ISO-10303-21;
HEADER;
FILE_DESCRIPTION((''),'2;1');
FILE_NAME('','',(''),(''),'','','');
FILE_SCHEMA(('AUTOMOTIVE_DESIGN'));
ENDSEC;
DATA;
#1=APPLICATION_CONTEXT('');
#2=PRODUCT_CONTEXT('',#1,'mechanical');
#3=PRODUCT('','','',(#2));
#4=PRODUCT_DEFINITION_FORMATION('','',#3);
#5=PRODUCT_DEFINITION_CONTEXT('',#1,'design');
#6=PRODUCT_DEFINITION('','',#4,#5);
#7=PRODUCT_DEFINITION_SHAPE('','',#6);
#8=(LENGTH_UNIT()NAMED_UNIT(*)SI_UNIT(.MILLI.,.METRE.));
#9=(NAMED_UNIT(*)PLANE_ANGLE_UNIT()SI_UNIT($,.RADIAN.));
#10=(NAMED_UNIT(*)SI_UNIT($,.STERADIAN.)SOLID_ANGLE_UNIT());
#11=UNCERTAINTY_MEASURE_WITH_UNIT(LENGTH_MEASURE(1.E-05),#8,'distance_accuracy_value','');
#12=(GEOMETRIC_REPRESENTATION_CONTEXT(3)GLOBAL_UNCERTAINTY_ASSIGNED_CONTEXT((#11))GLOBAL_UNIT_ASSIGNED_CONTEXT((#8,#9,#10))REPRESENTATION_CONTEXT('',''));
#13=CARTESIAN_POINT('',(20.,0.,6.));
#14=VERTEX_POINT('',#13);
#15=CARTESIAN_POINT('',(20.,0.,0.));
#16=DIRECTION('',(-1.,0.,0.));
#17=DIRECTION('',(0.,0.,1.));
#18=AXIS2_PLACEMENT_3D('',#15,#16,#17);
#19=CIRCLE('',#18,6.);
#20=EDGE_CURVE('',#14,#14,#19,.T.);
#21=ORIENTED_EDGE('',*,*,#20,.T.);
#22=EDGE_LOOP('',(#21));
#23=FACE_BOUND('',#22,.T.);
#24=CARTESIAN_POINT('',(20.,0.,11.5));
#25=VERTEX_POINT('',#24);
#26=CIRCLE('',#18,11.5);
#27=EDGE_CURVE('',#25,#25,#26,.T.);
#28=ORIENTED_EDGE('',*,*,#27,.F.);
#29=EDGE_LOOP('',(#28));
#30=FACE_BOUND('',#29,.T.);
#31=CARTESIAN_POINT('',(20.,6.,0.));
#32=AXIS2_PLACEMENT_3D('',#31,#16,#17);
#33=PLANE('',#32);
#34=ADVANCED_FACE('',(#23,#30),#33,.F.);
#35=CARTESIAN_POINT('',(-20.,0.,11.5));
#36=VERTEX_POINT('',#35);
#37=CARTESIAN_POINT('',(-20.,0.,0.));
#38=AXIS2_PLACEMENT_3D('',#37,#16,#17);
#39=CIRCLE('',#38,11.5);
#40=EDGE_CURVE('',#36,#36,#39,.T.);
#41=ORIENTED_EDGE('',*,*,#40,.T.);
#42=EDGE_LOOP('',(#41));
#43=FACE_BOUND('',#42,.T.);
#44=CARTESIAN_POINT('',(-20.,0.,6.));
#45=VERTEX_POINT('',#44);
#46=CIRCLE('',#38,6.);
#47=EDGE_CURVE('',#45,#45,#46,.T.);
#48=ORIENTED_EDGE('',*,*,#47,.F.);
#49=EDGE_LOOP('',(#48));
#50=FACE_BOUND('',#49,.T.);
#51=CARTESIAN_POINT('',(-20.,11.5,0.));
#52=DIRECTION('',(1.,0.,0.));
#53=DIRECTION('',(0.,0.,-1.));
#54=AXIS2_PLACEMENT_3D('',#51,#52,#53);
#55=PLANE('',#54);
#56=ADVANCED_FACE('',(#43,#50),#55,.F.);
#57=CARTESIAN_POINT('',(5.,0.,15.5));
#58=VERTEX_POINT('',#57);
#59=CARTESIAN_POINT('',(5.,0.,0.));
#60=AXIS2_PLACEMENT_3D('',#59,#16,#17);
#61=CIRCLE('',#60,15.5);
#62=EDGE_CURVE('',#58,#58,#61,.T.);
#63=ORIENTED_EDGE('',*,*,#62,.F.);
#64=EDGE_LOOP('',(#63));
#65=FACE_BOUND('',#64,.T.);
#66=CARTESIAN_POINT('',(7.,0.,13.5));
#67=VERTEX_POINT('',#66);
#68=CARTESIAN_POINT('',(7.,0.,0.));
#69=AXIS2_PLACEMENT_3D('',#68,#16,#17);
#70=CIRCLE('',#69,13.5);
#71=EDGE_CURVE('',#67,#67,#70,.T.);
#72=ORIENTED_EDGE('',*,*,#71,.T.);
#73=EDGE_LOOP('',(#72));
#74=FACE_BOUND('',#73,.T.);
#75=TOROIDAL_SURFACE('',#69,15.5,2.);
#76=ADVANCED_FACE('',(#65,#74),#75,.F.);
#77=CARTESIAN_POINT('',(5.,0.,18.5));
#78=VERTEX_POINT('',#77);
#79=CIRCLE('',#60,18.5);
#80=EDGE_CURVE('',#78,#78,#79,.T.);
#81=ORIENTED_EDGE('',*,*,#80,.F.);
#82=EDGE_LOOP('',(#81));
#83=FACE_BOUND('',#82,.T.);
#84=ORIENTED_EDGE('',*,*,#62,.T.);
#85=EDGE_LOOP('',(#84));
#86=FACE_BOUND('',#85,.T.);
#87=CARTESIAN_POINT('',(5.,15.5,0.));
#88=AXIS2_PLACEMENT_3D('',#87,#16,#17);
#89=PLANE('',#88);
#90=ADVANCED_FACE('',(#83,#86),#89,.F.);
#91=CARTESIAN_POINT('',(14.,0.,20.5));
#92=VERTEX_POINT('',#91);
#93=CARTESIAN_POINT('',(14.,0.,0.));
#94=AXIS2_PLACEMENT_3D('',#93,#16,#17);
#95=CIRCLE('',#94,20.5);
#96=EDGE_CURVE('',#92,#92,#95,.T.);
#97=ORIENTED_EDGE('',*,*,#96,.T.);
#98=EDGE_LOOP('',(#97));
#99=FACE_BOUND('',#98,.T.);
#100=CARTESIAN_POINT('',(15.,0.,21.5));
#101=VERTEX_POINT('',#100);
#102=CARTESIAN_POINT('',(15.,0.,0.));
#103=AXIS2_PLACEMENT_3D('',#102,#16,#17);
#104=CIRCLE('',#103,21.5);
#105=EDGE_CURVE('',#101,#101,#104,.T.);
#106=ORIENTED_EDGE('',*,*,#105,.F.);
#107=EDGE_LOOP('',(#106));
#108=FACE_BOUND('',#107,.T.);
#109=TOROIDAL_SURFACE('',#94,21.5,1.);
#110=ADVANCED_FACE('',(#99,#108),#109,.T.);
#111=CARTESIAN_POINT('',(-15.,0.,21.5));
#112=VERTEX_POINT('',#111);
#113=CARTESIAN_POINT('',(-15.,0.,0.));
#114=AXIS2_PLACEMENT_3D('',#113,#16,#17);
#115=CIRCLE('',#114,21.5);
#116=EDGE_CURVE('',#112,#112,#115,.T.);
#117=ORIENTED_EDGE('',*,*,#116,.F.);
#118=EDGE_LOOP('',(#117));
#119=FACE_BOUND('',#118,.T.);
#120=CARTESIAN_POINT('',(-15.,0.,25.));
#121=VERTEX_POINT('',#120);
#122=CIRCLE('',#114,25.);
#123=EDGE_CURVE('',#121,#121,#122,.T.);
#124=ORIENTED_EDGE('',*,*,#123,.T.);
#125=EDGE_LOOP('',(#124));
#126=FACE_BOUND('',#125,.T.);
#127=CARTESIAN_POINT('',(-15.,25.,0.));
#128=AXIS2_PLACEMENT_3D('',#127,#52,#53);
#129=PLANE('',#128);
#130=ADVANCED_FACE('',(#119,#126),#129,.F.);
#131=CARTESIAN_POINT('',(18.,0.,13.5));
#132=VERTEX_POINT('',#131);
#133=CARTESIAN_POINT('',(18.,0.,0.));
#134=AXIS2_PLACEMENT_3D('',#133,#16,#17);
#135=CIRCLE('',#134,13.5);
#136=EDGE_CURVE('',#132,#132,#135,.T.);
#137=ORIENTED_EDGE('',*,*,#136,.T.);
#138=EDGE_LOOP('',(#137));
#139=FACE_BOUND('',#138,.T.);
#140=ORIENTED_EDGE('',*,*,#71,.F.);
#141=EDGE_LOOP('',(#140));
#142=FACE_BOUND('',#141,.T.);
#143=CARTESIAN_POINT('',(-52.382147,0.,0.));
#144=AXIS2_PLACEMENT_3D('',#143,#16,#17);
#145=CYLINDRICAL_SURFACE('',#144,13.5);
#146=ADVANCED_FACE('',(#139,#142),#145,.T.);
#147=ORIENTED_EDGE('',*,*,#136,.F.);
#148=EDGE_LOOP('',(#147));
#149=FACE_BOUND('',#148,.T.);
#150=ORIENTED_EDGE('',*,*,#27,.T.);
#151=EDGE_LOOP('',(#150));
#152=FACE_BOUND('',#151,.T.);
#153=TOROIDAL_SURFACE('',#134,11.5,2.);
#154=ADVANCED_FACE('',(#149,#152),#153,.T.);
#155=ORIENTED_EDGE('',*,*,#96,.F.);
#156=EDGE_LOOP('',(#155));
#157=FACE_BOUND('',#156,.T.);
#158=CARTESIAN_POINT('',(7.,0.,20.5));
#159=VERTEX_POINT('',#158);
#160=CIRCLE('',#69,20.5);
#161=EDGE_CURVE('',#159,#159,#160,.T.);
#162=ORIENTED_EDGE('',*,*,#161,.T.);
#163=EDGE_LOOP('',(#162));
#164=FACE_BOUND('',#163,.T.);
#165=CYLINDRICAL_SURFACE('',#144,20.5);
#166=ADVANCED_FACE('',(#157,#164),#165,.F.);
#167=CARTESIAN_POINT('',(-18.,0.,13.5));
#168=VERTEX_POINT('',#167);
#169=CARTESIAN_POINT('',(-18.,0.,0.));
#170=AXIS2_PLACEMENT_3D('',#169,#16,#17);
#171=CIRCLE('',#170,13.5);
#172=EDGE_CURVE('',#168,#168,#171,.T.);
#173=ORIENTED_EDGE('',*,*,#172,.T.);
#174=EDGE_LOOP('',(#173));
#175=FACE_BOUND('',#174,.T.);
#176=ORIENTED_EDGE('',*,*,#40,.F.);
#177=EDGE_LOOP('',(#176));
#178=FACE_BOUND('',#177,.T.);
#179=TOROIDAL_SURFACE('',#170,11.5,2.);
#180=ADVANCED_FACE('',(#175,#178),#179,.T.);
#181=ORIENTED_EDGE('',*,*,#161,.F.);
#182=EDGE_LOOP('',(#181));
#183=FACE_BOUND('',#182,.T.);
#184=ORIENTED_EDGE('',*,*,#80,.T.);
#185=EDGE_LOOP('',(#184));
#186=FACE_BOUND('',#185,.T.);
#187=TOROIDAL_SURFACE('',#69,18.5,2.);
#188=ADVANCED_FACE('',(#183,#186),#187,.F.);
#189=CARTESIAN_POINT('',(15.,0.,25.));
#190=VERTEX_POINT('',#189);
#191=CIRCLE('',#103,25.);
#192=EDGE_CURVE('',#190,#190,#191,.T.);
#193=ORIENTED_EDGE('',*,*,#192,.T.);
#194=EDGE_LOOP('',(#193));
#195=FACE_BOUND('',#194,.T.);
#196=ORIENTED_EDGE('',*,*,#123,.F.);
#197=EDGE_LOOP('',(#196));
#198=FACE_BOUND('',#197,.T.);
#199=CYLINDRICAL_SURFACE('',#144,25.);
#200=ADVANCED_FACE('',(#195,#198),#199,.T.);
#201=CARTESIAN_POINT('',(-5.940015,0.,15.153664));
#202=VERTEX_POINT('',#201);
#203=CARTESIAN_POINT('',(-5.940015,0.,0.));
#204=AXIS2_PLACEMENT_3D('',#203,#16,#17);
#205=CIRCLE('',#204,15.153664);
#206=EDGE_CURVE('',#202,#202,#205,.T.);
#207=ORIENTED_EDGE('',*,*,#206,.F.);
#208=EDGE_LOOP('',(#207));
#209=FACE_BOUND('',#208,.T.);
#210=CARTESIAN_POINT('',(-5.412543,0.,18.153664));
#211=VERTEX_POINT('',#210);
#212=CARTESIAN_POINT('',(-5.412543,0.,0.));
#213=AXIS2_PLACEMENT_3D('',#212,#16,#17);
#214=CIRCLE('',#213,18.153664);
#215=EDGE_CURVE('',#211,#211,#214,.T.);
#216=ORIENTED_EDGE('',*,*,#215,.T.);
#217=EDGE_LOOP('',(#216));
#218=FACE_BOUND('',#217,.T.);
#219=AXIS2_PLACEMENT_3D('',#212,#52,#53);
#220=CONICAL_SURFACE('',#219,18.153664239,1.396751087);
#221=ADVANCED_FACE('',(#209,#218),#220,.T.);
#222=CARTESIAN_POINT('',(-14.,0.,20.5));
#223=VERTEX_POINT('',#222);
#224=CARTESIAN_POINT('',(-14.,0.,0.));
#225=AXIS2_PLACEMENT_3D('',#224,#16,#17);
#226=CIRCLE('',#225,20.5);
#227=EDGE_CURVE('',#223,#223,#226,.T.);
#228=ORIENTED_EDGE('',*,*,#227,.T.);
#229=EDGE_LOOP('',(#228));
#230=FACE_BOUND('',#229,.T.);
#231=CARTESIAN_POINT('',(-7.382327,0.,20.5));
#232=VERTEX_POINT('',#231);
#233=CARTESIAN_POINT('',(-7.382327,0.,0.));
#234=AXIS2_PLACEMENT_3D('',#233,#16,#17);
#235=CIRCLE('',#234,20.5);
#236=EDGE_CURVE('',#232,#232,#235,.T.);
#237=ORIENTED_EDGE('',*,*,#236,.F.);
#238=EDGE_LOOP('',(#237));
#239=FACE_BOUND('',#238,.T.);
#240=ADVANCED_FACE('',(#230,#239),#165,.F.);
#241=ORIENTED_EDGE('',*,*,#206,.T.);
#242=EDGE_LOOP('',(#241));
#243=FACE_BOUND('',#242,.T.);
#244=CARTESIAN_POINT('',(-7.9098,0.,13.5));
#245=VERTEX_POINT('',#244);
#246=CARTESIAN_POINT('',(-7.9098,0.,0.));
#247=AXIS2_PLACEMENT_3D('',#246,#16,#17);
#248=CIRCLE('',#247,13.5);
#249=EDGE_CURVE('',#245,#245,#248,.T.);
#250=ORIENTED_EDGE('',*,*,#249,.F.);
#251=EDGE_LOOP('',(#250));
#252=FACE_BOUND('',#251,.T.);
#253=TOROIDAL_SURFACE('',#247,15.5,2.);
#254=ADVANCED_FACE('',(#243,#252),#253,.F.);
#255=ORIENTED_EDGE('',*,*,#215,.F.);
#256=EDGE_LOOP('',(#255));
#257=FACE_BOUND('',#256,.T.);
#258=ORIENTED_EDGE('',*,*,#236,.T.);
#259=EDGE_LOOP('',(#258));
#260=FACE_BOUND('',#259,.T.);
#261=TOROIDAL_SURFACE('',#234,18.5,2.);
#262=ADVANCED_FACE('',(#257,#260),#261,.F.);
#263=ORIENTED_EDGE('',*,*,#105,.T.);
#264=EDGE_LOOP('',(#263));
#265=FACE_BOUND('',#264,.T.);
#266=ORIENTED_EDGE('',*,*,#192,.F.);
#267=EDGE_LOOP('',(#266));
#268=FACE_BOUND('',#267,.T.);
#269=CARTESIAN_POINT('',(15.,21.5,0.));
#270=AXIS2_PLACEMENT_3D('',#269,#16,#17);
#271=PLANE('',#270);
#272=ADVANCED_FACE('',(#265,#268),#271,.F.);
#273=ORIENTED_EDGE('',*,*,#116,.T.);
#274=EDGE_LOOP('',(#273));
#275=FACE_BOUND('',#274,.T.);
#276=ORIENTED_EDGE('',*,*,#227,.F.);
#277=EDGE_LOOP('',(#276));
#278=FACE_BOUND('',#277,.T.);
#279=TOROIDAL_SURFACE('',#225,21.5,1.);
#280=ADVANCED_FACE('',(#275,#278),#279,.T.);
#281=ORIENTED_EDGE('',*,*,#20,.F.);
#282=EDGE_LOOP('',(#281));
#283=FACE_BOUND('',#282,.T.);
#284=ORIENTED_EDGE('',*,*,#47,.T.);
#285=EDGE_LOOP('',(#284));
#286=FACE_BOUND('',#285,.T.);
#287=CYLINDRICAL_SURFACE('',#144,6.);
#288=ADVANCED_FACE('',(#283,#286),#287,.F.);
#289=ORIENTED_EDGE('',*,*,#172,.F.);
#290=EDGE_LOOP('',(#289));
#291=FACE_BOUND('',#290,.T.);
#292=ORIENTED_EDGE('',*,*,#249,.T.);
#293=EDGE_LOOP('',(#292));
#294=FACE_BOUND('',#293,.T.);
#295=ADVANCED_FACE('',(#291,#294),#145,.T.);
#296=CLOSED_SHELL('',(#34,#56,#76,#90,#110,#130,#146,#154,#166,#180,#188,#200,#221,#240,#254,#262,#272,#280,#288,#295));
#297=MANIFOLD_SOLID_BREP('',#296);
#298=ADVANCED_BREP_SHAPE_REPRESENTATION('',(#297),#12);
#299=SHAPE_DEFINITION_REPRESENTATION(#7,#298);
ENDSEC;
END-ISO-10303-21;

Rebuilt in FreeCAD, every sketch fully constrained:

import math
import FreeCAD as App
import Part
import Sketcher

V = App.Vector

doc = App.newDocument("Part")
params = doc.addObject("Spreadsheet::Sheet", "Params")
for row, (alias, value) in enumerate([
    ("sketch1_radius", "2 mm"),
    ("sketch1_radius2", "1 mm"),
    ("sketch1_width", "40 mm"),
    ("sketch1_width2", "11 mm"),
    ("sketch1_width3", "7 mm"),
    ("revolution_angle", "360 deg"),
], start=1):
    params.set(f"A{row}", alias)
    params.set(f"B{row}", "=" + value)
    params.setAlias(f"B{row}", alias)

body = doc.addObject("PartDesign::Body", "Body")

sketch1 = body.newObject("Sketcher::SketchObject", "Sketch")
sketch1.AttachmentSupport = (doc.getObject("XY_Plane"), [""])
sketch1.MapMode = "FlatFace"
sketch1.addGeometry([
    Part.LineSegment(V(-20, 6, 0), V(20, 6, 0)),
    Part.LineSegment(V(20, 6, 0), V(20, 11.5, 0)),
    Part.ArcOfCircle(Part.Circle(V(18, 11.5, 0), V(0, 0, 1), 2), math.radians(0), math.radians(90)),
    Part.LineSegment(V(18, 13.5, 0), V(7, 13.5, 0)),
    Part.ArcOfCircle(Part.Circle(V(7, 15.5, 0), V(0, 0, 1), 2), math.radians(-180), math.radians(-90)),
    Part.LineSegment(V(5, 15.5, 0), V(5, 18.5, 0)),
    Part.ArcOfCircle(Part.Circle(V(7, 18.5, 0), V(0, 0, 1), 2), math.radians(90), math.radians(180)),
    Part.LineSegment(V(7, 20.5, 0), V(14, 20.5, 0)),
    Part.ArcOfCircle(Part.Circle(V(14, 21.5, 0), V(0, 0, 1), 1), math.radians(-90), math.radians(0)),
    Part.LineSegment(V(15, 21.5, 0), V(15, 25, 0)),
    Part.LineSegment(V(15, 25, 0), V(-15, 25, 0)),
    Part.LineSegment(V(-15, 25, 0), V(-15, 21.5, 0)),
    Part.ArcOfCircle(Part.Circle(V(-14, 21.5, 0), V(0, 0, 1), 1), math.radians(-180), math.radians(-90)),
    Part.LineSegment(V(-14, 20.5, 0), V(-7.382327, 20.5, 0)),
    Part.ArcOfCircle(Part.Circle(V(-7.382327, 18.5, 0), V(0, 0, 1), 2), math.radians(-9.972058), math.radians(90)),
    Part.LineSegment(V(-5.412543, 18.153664, 0), V(-5.940015, 15.153664, 0)),
    Part.ArcOfCircle(Part.Circle(V(-7.9098, 15.5, 0), V(0, 0, 1), 2), math.radians(-90), math.radians(-9.972058)),
    Part.LineSegment(V(-7.9098, 13.5, 0), V(-18, 13.5, 0)),
    Part.ArcOfCircle(Part.Circle(V(-18, 11.5, 0), V(0, 0, 1), 2), math.radians(90), math.radians(180)),
    Part.LineSegment(V(-20, 11.5, 0), V(-20, 6, 0)),
], False)
sketch1.addConstraint([
    Sketcher.Constraint("Coincident", 0, 2, 1, 1),
    Sketcher.Constraint("Tangent", 1, 2, 2, 1),
    Sketcher.Constraint("Tangent", 2, 2, 3, 1),
    Sketcher.Constraint("Tangent", 3, 2, 4, 2),
    Sketcher.Constraint("Tangent", 4, 1, 5, 1),
    Sketcher.Constraint("Tangent", 5, 2, 6, 2),
    Sketcher.Constraint("Tangent", 6, 1, 7, 1),
    Sketcher.Constraint("Tangent", 7, 2, 8, 1),
    Sketcher.Constraint("Tangent", 8, 2, 9, 1),
    Sketcher.Constraint("Coincident", 9, 2, 10, 1),
    Sketcher.Constraint("Coincident", 10, 2, 11, 1),
    Sketcher.Constraint("Tangent", 11, 2, 12, 1),
    Sketcher.Constraint("Tangent", 12, 2, 13, 1),
    Sketcher.Constraint("Tangent", 13, 2, 14, 2),
    Sketcher.Constraint("Tangent", 14, 1, 15, 1),
    Sketcher.Constraint("Tangent", 15, 2, 16, 2),
    Sketcher.Constraint("Tangent", 16, 1, 17, 1),
    Sketcher.Constraint("Tangent", 17, 2, 18, 1),
    Sketcher.Constraint("Tangent", 18, 2, 19, 1),
    Sketcher.Constraint("Coincident", 19, 2, 0, 1),
    Sketcher.Constraint("Horizontal", 0),
    Sketcher.Constraint("Vertical", 1),
    Sketcher.Constraint("Horizontal", 3),
    Sketcher.Constraint("Vertical", 5),
    Sketcher.Constraint("Horizontal", 7),
    Sketcher.Constraint("Vertical", 9),
    Sketcher.Constraint("Horizontal", 10),
    Sketcher.Constraint("Vertical", 11),
    Sketcher.Constraint("Horizontal", 13),
    Sketcher.Constraint("Horizontal", 17),
    Sketcher.Constraint("Vertical", 19),
    Sketcher.Constraint("Equal", 2, 4),
    Sketcher.Constraint("Equal", 4, 6),
    Sketcher.Constraint("Equal", 8, 12),
    Sketcher.Constraint("Equal", 6, 14),
    Sketcher.Constraint("Equal", 14, 16),
    Sketcher.Constraint("Equal", 16, 18),
    Sketcher.Constraint("Symmetric", 8, 3, 12, 3, -2),
    Sketcher.Constraint("Symmetric", 2, 3, 18, 3, -2),
    Sketcher.Constraint("Radius", 2, 2.0),
    Sketcher.Constraint("Radius", 8, 1.0),
    Sketcher.Constraint("DistanceX", 0, 1, 0, 2, 40.0),
    Sketcher.Constraint("DistanceX", 3, 2, 3, 1, 11.0),
    Sketcher.Constraint("DistanceX", 7, 1, 7, 2, 7.0),
    Sketcher.Constraint("DistanceY", 5, 1, 5, 2, 3.0),
    Sketcher.Constraint("DistanceY", 1, 1, 1, 2, 5.5),
    Sketcher.Constraint("DistanceY", 9, 1, 9, 2, 3.5),
    Sketcher.Constraint("DistanceY", -1, 1, 0, 2, 6.0),
    Sketcher.Constraint("DistanceX", 17, 2, 17, 1, 10.0902),
    Sketcher.Constraint("Distance", 15, 3.046018),
])
sketch1.setExpression("Constraints[39]", "Params.sketch1_radius")
sketch1.setExpression("Constraints[40]", "Params.sketch1_radius2")
sketch1.setExpression("Constraints[41]", "Params.sketch1_width")
sketch1.setExpression("Constraints[42]", "Params.sketch1_width2")
sketch1.setExpression("Constraints[43]", "Params.sketch1_width3")
revolution = body.newObject("PartDesign::Revolution", "Revolution")
revolution.Profile = sketch1
revolution.ReferenceAxis = (sketch1, ["H_Axis"])
revolution.setExpression("Angle", "Params.revolution_angle")

doc.recompute()
